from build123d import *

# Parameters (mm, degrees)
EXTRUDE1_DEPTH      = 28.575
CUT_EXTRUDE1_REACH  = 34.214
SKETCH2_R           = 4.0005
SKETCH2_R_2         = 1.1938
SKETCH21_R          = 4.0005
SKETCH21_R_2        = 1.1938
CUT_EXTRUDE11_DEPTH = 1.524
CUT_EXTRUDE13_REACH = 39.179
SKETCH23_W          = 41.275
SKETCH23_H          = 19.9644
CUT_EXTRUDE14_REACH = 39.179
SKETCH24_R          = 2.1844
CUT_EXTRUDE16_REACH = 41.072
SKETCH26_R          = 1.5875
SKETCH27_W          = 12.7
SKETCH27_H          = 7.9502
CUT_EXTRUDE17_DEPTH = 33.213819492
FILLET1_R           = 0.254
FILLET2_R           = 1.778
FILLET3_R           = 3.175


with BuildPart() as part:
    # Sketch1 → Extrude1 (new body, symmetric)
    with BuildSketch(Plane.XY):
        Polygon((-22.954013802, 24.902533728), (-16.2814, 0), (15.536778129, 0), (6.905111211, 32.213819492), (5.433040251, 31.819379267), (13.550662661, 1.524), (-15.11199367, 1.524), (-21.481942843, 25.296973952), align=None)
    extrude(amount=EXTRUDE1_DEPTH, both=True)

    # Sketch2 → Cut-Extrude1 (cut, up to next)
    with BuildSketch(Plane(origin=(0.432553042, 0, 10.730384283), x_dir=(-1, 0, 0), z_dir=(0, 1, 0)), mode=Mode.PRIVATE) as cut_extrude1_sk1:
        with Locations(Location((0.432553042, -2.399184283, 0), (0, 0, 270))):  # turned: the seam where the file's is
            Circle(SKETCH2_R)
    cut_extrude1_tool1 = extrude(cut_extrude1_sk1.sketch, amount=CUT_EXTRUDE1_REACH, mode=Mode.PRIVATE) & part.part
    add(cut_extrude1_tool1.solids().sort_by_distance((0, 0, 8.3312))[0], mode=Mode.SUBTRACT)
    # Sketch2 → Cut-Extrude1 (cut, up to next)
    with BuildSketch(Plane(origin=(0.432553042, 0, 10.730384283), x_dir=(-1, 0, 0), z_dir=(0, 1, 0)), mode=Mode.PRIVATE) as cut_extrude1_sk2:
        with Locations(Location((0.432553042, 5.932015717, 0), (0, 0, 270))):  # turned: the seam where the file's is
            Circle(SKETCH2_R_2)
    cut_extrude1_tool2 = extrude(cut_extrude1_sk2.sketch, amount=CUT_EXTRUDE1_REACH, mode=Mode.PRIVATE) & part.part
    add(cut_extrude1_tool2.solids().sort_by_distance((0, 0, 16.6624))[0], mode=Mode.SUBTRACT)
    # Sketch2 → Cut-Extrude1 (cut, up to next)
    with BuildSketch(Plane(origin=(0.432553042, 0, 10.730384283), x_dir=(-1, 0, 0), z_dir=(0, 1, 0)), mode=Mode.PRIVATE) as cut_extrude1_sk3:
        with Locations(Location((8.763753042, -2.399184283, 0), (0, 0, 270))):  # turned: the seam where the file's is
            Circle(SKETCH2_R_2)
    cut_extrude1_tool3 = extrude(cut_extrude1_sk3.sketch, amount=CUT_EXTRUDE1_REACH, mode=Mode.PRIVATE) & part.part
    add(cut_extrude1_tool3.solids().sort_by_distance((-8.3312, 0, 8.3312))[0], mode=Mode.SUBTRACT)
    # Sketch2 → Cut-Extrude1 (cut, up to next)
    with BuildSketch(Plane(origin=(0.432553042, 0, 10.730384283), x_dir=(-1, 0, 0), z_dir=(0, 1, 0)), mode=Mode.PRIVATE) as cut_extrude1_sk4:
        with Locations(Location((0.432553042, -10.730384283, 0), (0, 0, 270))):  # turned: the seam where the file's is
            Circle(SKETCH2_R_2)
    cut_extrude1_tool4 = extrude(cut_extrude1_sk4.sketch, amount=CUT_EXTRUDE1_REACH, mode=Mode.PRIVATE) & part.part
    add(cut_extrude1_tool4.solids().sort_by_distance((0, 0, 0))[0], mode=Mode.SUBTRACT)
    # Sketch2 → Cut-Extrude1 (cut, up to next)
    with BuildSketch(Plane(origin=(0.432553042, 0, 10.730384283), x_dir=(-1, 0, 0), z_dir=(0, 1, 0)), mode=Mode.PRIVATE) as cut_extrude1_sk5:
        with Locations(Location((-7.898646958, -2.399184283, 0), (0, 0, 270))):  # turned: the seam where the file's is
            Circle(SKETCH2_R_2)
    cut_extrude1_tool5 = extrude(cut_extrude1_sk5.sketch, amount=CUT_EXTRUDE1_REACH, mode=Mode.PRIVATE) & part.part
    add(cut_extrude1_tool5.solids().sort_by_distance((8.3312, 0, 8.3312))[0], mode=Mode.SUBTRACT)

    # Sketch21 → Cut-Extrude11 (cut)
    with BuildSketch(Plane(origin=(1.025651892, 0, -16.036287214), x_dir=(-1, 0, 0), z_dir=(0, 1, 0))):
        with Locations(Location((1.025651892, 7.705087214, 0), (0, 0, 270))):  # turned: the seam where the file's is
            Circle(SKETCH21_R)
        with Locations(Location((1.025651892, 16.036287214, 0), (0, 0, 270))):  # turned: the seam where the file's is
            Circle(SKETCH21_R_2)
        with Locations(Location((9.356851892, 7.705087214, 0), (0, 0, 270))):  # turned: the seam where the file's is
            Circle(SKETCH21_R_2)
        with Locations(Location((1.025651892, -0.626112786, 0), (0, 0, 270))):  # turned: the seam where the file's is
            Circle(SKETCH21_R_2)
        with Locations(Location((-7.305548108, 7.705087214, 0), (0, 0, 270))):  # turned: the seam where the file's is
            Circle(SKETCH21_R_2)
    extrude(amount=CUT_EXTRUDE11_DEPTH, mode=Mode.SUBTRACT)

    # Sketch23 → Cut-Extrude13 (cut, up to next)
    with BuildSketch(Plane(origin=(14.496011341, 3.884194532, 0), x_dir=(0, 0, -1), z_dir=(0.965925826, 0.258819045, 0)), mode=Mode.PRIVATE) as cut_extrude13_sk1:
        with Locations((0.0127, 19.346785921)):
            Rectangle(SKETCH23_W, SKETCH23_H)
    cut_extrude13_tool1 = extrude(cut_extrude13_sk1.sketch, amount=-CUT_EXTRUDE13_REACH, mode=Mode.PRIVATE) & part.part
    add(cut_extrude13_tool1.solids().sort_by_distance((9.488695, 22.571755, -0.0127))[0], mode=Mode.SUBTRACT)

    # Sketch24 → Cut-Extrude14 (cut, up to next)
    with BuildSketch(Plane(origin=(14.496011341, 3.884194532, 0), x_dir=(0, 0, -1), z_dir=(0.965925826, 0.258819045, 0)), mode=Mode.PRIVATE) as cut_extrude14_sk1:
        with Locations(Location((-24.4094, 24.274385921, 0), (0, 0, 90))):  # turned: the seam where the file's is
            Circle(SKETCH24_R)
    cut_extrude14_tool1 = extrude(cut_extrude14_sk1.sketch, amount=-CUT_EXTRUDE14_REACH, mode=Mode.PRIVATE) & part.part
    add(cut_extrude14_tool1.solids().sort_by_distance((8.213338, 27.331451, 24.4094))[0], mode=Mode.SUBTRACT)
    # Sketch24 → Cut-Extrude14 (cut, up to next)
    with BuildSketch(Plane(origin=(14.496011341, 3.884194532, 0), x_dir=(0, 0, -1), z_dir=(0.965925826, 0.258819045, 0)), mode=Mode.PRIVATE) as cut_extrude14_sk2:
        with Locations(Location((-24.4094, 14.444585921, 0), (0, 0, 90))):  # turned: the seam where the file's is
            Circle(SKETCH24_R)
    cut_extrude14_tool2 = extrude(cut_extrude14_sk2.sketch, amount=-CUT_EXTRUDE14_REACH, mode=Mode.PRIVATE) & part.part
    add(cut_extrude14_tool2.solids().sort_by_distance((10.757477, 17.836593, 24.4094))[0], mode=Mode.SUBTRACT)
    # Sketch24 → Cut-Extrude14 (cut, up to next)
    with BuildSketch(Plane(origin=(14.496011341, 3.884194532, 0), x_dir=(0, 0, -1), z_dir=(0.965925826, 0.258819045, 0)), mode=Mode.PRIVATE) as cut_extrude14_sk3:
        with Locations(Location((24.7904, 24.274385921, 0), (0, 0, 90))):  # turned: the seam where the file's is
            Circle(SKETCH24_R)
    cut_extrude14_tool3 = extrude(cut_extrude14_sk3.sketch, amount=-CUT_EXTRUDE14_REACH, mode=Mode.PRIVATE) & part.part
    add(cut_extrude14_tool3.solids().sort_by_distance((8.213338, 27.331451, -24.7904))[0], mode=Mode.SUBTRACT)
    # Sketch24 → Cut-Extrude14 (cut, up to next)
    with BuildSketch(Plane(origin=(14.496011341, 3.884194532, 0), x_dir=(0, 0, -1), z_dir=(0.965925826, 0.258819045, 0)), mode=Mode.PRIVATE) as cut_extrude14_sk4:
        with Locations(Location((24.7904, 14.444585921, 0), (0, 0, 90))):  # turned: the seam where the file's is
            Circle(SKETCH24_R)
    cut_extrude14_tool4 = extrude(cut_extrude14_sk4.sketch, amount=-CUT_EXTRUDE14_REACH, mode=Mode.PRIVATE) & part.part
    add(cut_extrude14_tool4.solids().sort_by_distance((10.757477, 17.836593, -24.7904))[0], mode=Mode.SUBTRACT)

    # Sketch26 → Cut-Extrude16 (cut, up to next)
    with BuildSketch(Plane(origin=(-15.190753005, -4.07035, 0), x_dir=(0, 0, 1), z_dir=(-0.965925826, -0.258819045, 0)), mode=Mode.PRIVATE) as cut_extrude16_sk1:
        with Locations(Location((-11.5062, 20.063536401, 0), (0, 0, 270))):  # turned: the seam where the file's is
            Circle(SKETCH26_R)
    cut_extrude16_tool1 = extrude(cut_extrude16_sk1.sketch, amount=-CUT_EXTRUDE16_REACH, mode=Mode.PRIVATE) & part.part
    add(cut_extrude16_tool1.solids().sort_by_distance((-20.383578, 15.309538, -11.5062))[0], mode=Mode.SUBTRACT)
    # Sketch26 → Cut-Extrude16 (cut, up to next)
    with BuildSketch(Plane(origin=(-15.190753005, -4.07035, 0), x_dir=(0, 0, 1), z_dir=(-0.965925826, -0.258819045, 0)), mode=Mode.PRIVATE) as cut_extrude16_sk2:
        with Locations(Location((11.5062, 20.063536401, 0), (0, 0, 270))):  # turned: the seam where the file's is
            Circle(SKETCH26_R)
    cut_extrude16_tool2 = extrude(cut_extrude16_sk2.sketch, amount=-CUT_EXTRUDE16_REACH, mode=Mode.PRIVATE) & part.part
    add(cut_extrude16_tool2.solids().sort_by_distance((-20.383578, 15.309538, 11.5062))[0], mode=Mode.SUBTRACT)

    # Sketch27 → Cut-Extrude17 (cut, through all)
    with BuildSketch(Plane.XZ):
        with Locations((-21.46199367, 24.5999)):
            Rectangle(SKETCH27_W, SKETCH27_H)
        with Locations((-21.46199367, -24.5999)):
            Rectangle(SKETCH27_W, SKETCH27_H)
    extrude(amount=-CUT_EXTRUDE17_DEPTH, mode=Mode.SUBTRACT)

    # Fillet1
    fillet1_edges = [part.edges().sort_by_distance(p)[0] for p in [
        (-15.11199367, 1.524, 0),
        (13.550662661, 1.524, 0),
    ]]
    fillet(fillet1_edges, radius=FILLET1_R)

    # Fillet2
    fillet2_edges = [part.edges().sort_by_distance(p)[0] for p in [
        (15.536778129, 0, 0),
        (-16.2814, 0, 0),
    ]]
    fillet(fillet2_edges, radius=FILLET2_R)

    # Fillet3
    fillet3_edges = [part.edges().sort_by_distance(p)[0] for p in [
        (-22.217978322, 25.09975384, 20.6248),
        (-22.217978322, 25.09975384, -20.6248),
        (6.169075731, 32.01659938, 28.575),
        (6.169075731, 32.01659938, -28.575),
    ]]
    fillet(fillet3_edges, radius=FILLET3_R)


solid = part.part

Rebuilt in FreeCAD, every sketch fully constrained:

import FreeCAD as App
import Part
import Sketcher
from FreeCAD import Vector
Q = App.Units.Quantity


def edges_at(feature, points):
    """Names of the edges that pass closest to the given points."""
    edges = feature.Shape.Edges
    near = lambda p: min(range(len(edges)), key=lambda i: edges[i].distToShape(Part.Vertex(*p))[0])
    return sorted({f"Edge{near(p) + 1}" for p in points})


def add_polygon(sketch, points):
    """Adds a closed chain of lines whose ends are joined by coincident constraints."""
    first, n = sketch.GeometryCount, len(points)
    for a, b in zip(points, points[1:] + points[:1]):
        sketch.addGeometry(Part.LineSegment(App.Vector(*a, 0), App.Vector(*b, 0)), False)
    for i in range(n):
        sketch.addConstraint(Sketcher.Constraint("Coincident", first + i, 2, first + (i + 1) % n, 1))

doc = App.newDocument("Part")
body = doc.addObject("PartDesign::Body", "Body")

# Sketch on XY plane
sketch1 = body.newObject("Sketcher::SketchObject", "Sketch")
sketch1.AttachmentSupport = (doc.getObject("XY_Plane"), [""])
sketch1.MapMode = "FlatFace"
add_polygon(sketch1, [(-22.954014, 24.902534), (-16.2814, 0), (15.536778, 0), (6.905111, 32.213819), (5.43304, 31.819379), (13.550663, 1.524), (-15.111994, 1.524), (-21.481943, 25.296974)])  # lines 0-7
sketch1.addConstraint([
    Sketcher.Constraint("Horizontal", 1),
    Sketcher.Constraint("Horizontal", 5),
    Sketcher.Constraint("PointOnObject", 0, 2, -1),
    Sketcher.Constraint("Parallel", 0, 2),
    Sketcher.Constraint("Perpendicular", 2, 3),
    Sketcher.Constraint("Perpendicular", 3, 4),
    Sketcher.Constraint("Parallel", 4, 6),
    Sketcher.Constraint("Perpendicular", 6, 7),
    Sketcher.Constraint("Equal", 3, 7),
    Sketcher.Constraint("Angle", 0, Q("-75 deg")),
    Sketcher.Constraint("Distance", 3, Q("0.06 in")),
    Sketcher.Constraint("DistanceY", -1, 1, 4, 2, Q("0.06 in")),
    Sketcher.Constraint("Distance", 0, Q("1.015 in")),
    Sketcher.Constraint("Distance", 2, Q("1.313 in")),
    Sketcher.Constraint("DistanceX", 0, 2, -1, 1, Q("0.641 in")),
    Sketcher.Constraint("DistanceX", 1, 1, 1, 2, 31.818178),
])
pad1 = body.newObject("PartDesign::Pad", "Pad")
pad1.Profile = sketch1
pad1.Length = Q("2.25 in")
pad1.Midplane = True

# Sketch on XZ plane
sketch2 = body.newObject("Sketcher::SketchObject", "Sketch001")
sketch2.AttachmentSupport = (doc.getObject("XZ_Plane"), [""])
sketch2.MapMode = "FlatFace"
sketch2.addGeometry(Part.Circle(Vector(0, 8.3312, 0), Vector(0, 0, 1), 4.0005), False)
sketch2.addConstraint([
    Sketcher.Constraint("PointOnObject", 0, 3, -2),
    Sketcher.Constraint("Diameter", 0, Q("0.315 in")),
    Sketcher.Constraint("DistanceY", -1, 1, 0, 3, Q("0.328 in")),
])
pocket1 = body.newObject("PartDesign::Pocket", "Pocket")
pocket1.Profile = sketch2
pocket1.Type = "UpToFirst"

# Sketch on XZ plane
sketch3 = body.newObject("Sketcher::SketchObject", "Sketch002")
sketch3.AttachmentSupport = (doc.getObject("XZ_Plane"), [""])
sketch3.MapMode = "FlatFace"
sketch3.addGeometry(Part.Circle(Vector(0, 16.6624, 0), Vector(0, 0, 1), 1.1938), False)
sketch3.addConstraint([
    Sketcher.Constraint("PointOnObject", 0, 3, -2),
    Sketcher.Constraint("Diameter", 0, Q("0.094 in")),
    Sketcher.Constraint("DistanceY", -1, 1, 0, 3, Q("0.656 in")),
])
pocket2 = body.newObject("PartDesign::Pocket", "Pocket001")
pocket2.Profile = sketch3
pocket2.Type = "UpToFirst"

# Sketch on XZ plane
sketch4 = body.newObject("Sketcher::SketchObject", "Sketch003")
sketch4.AttachmentSupport = (doc.getObject("XZ_Plane"), [""])
sketch4.MapMode = "FlatFace"
sketch4.addGeometry(Part.Circle(Vector(-8.3312, 8.3312, 0), Vector(0, 0, 1), 1.1938), False)
sketch4.addConstraint([
    Sketcher.Constraint("Diameter", 0, Q("0.094 in")),
    Sketcher.Constraint("DistanceX", 0, 3, -1, 1, Q("0.328 in")),
    Sketcher.Constraint("DistanceY", -1, 1, 0, 3, Q("0.328 in")),
])
pocket3 = body.newObject("PartDesign::Pocket", "Pocket002")
pocket3.Profile = sketch4
pocket3.Type = "UpToFirst"

# Sketch on XZ plane
sketch5 = body.newObject("Sketcher::SketchObject", "Sketch004")
sketch5.AttachmentSupport = (doc.getObject("XZ_Plane"), [""])
sketch5.MapMode = "FlatFace"
sketch5.addGeometry(Part.Circle(Vector(0, 0, 0), Vector(0, 0, 1), 1.1938), False)
sketch5.addConstraint([
    Sketcher.Constraint("Coincident", 0, 3, -1, 1),
    Sketcher.Constraint("Diameter", 0, Q("0.094 in")),
])
pocket4 = body.newObject("PartDesign::Pocket", "Pocket003")
pocket4.Profile = sketch5
pocket4.Type = "UpToFirst"

# Sketch on XZ plane
sketch6 = body.newObject("Sketcher::SketchObject", "Sketch005")
sketch6.AttachmentSupport = (doc.getObject("XZ_Plane"), [""])
sketch6.MapMode = "FlatFace"
sketch6.addGeometry(Part.Circle(Vector(8.3312, 8.3312, 0), Vector(0, 0, 1), 1.1938), False)
sketch6.addConstraint([
    Sketcher.Constraint("Diameter", 0, Q("0.094 in")),
    Sketcher.Constraint("DistanceX", -1, 1, 0, 3, Q("0.328 in")),
    Sketcher.Constraint("DistanceY", -1, 1, 0, 3, Q("0.328 in")),
])
pocket5 = body.newObject("PartDesign::Pocket", "Pocket004")
pocket5.Profile = sketch6
pocket5.Type = "UpToFirst"

# Sketch on XZ plane
sketch7 = body.newObject("Sketcher::SketchObject", "Sketch006")
sketch7.AttachmentSupport = (doc.getObject("XZ_Plane"), [""])
sketch7.MapMode = "FlatFace"
sketch7.addGeometry([
    Part.Circle(Vector(0, -8.3312, 0), Vector(0, 0, 1), 4.0005),  # 0
    Part.Circle(Vector(0, 0, 0), Vector(0, 0, 1), 1.1938),  # 1
    Part.Circle(Vector(-8.3312, -8.3312, 0), Vector(0, 0, 1), 1.1938),  # 2
    Part.Circle(Vector(0, -16.6624, 0), Vector(0, 0, 1), 1.1938),  # 3
    Part.Circle(Vector(8.3312, -8.3312, 0), Vector(0, 0, 1), 1.1938),  # 4
], False)
sketch7.addConstraint([
    Sketcher.Constraint("Coincident", 1, 3, -1, 1),
    Sketcher.Constraint("Equal", 1, 2),
    Sketcher.Constraint("Equal", 2, 3),
    Sketcher.Constraint("Equal", 3, 4),
    Sketcher.Constraint("Symmetric", 2, 3, 4, 3, -2),
    Sketcher.Constraint("PointOnObject", 0, 3, -2),
    Sketcher.Constraint("PointOnObject", 3, 3, -2),
    Sketcher.Constraint("Horizontal", 0, 3, 2, 3),
    Sketcher.Constraint("Diameter", 0, Q("0.315 in")),
    Sketcher.Constraint("Diameter", 1, Q("0.094 in")),
    Sketcher.Constraint("DistanceY", 0, 3, -1, 1, Q("0.328 in")),
    Sketcher.Constraint("DistanceX", 2, 3, -1, 1, Q("0.328 in")),
    Sketcher.Constraint("DistanceY", 3, 3, -1, 1, Q("0.656 in")),
])
pocket6 = body.newObject("PartDesign::Pocket", "Pocket005")
pocket6.Profile = sketch7
pocket6.Length = Q("0.06 in")

# Sketch on an angled plane
sketch8 = body.newObject("Sketcher::SketchObject", "Sketch007")
sketch8.Placement = App.Placement(Vector(14.496011, 3.884195, 0), App.Rotation(Vector(0, 0, -1), Vector(-0.258819045, 0.965925826, 0), Vector(0.965925826, 0.258819045, 0), "ZXY"))
add_polygon(sketch8, [(-20.6248, 29.328986), (-20.6248, 9.364586), (20.6502, 9.364586), (20.6502, 29.328986)])  # lines 0-3
sketch8.addConstraint([
    Sketcher.Constraint("Vertical", 0),
    Sketcher.Constraint("Horizontal", 1),
    Sketcher.Constraint("Vertical", 2),
    Sketcher.Constraint("Horizontal", 3),
    Sketcher.Constraint("DistanceX", 1, 1, 1, 2, Q("1.625 in")),
    Sketcher.Constraint("DistanceY", 0, 2, 0, 1, Q("0.786 in")),
    Sketcher.Constraint("DistanceX", 0, 2, -1, 1, Q("0.812 in")),
    Sketcher.Constraint("DistanceY", -1, 1, 0, 2, 9.364586),
])
pocket7 = body.newObject("PartDesign::Pocket", "Pocket006")
pocket7.Profile = sketch8
pocket7.Type = "UpToFirst"

# Sketch on an angled plane
sketch9 = body.newObject("Sketcher::SketchObject", "Sketch008")
sketch9.Placement = App.Placement(Vector(14.496011, 3.884195, 0), App.Rotation(Vector(0, 0, -1), Vector(-0.258819045, 0.965925826, 0), Vector(0.965925826, 0.258819045, 0), "ZXY"))
sketch9.addGeometry(Part.Circle(Vector(-24.4094, 24.274386, 0), Vector(0, 0, 1), 2.1844), False)
sketch9.addConstraint([
    Sketcher.Constraint("Diameter", 0, Q("0.172 in")),
    Sketcher.Constraint("DistanceX", 0, 3, -1, 1, Q("0.961 in")),
    Sketcher.Constraint("DistanceY", -1, 1, 0, 3, 24.274386),
])
pocket8 = body.newObject("PartDesign::Pocket", "Pocket007")
pocket8.Profile = sketch9
pocket8.Type = "UpToFirst"

# Sketch on an angled plane
sketch10 = body.newObject("Sketcher::SketchObject", "Sketch009")
sketch10.Placement = App.Placement(Vector(14.496011, 3.884195, 0), App.Rotation(Vector(0, 0, -1), Vector(-0.258819045, 0.965925826, 0), Vector(0.965925826, 0.258819045, 0), "ZXY"))
sketch10.addGeometry(Part.Circle(Vector(-24.4094, 14.444586, 0), Vector(0, 0, 1), 2.1844), False)
sketch10.addConstraint([
    Sketcher.Constraint("Diameter", 0, Q("0.172 in")),
    Sketcher.Constraint("DistanceX", 0, 3, -1, 1, Q("0.961 in")),
    Sketcher.Constraint("DistanceY", -1, 1, 0, 3, 14.444586),
])
pocket9 = body.newObject("PartDesign::Pocket", "Pocket008")
pocket9.Profile = sketch10
pocket9.Type = "UpToFirst"

# Sketch on an angled plane
sketch11 = body.newObject("Sketcher::SketchObject", "Sketch010")
sketch11.Placement = App.Placement(Vector(14.496011, 3.884195, 0), App.Rotation(Vector(0, 0, -1), Vector(-0.258819045, 0.965925826, 0), Vector(0.965925826, 0.258819045, 0), "ZXY"))
sketch11.addGeometry(Part.Circle(Vector(24.7904, 24.274386, 0), Vector(0, 0, 1), 2.1844), False)
sketch11.addConstraint([
    Sketcher.Constraint("Diameter", 0, Q("0.172 in")),
    Sketcher.Constraint("DistanceX", -1, 1, 0, 3, Q("0.976 in")),
    Sketcher.Constraint("DistanceY", -1, 1, 0, 3, 24.274386),
])
pocket10 = body.newObject("PartDesign::Pocket", "Pocket009")
pocket10.Profile = sketch11
pocket10.Type = "UpToFirst"

# Sketch on an angled plane
sketch12 = body.newObject("Sketcher::SketchObject", "Sketch011")
sketch12.Placement = App.Placement(Vector(14.496011, 3.884195, 0), App.Rotation(Vector(0, 0, -1), Vector(-0.258819045, 0.965925826, 0), Vector(0.965925826, 0.258819045, 0), "ZXY"))
sketch12.addGeometry(Part.Circle(Vector(24.7904, 14.444586, 0), Vector(0, 0, 1), 2.1844), False)
sketch12.addConstraint([
    Sketcher.Constraint("Diameter", 0, Q("0.172 in")),
    Sketcher.Constraint("DistanceX", -1, 1, 0, 3, Q("0.976 in")),
    Sketcher.Constraint("DistanceY", -1, 1, 0, 3, 14.444586),
])
pocket11 = body.newObject("PartDesign::Pocket", "Pocket010")
pocket11.Profile = sketch12
pocket11.Type = "UpToFirst"

# Sketch on an angled plane
sketch13 = body.newObject("Sketcher::SketchObject", "Sketch012")
sketch13.Placement = App.Placement(Vector(-15.190753, -4.07035, 0), App.Rotation(Vector(0, 0, 1), Vector(-0.258819045, 0.965925826, 0), Vector(-0.965925826, -0.258819045, 0), "ZXY"))
sketch13.addGeometry(Part.Circle(Vector(-11.5062, 20.063536, 0), Vector(0, 0, 1), 1.5875), False)
sketch13.addConstraint([
    Sketcher.Constraint("Diameter", 0, Q("0.125 in")),
    Sketcher.Constraint("DistanceX", 0, 3, -1, 1, Q("0.453 in")),
    Sketcher.Constraint("DistanceY", -1, 1, 0, 3, 20.063536),
])
pocket12 = body.newObject("PartDesign::Pocket", "Pocket011")
pocket12.Profile = sketch13
pocket12.Type = "UpToFirst"

# Sketch on an angled plane
sketch14 = body.newObject("Sketcher::SketchObject", "Sketch013")
sketch14.Placement = App.Placement(Vector(-15.190753, -4.07035, 0), App.Rotation(Vector(0, 0, 1), Vector(-0.258819045, 0.965925826, 0), Vector(-0.965925826, -0.258819045, 0), "ZXY"))
sketch14.addGeometry(Part.Circle(Vector(11.5062, 20.063536, 0), Vector(0, 0, 1), 1.5875), False)
sketch14.addConstraint([
    Sketcher.Constraint("Diameter", 0, Q("0.125 in")),
    Sketcher.Constraint("DistanceX", -1, 1, 0, 3, Q("0.453 in")),
    Sketcher.Constraint("DistanceY", -1, 1, 0, 3, 20.063536),
])
pocket13 = body.newObject("PartDesign::Pocket", "Pocket012")
pocket13.Profile = sketch14
pocket13.Type = "UpToFirst"

# Sketch on XZ plane
sketch15 = body.newObject("Sketcher::SketchObject", "Sketch014")
sketch15.AttachmentSupport = (doc.getObject("XZ_Plane"), [""])
sketch15.MapMode = "FlatFace"
add_polygon(sketch15, [(-27.811994, 28.575), (-27.811994, 20.6248), (-15.111994, 20.6248), (-15.111994, 28.575)])  # lines 0-3
add_polygon(sketch15, [(-27.811994, -20.6248), (-27.811994, -28.575), (-15.111994, -28.575), (-15.111994, -20.6248)])  # lines 4-7
sketch15.addConstraint([
    Sketcher.Constraint("Vertical", 0),
    Sketcher.Constraint("Horizontal", 1),
    Sketcher.Constraint("Vertical", 2),
    Sketcher.Constraint("Horizontal", 3),
    Sketcher.Constraint("Vertical", 4),
    Sketcher.Constraint("Horizontal", 5),
    Sketcher.Constraint("Vertical", 6),
    Sketcher.Constraint("Horizontal", 7),
    Sketcher.Constraint("Symmetric", 3, 2, 4, 2, -1),
    Sketcher.Constraint("Symmetric", 1, 2, 6, 2, -1),
    Sketcher.Constraint("DistanceX", 1, 1, 1, 2, Q("0.5 in")),
    Sketcher.Constraint("DistanceY", 0, 2, 0, 1, Q("0.313 in")),
    Sketcher.Constraint("DistanceY", 4, 2, 3, 2, Q("2.25 in")),
    Sketcher.Constraint("DistanceX", 0, 2, -1, 1, 27.811994),
])
pocket14 = body.newObject("PartDesign::Pocket", "Pocket013")
pocket14.Profile = sketch15
pocket14.Type = "ThroughAll"
doc.recompute()

fillet = body.newObject("PartDesign::Fillet", "Fillet")
fillet.Base = (pocket14, edges_at(pocket14, [(-15.112, 1.524, 0), (13.551, 1.524, 0)]))
fillet.Radius = Q("0.01 in")
doc.recompute()

fillet2 = body.newObject("PartDesign::Fillet", "Fillet001")
fillet2.Base = (fillet, edges_at(fillet, [(15.537, 0, 0), (-16.281, 0, 0)]))
fillet2.Radius = Q("0.07 in")
doc.recompute()

fillet3 = body.newObject("PartDesign::Fillet", "Fillet002")
fillet3.Base = (fillet2, edges_at(fillet2, [
    (-22.218, 25.1, 20.625),
    (-22.218, 25.1, -20.625),
    (6.169, 32.017, 28.575),
    (6.169, 32.017, -28.575),
]))
fillet3.Radius = Q("0.125 in")

doc.recompute()
